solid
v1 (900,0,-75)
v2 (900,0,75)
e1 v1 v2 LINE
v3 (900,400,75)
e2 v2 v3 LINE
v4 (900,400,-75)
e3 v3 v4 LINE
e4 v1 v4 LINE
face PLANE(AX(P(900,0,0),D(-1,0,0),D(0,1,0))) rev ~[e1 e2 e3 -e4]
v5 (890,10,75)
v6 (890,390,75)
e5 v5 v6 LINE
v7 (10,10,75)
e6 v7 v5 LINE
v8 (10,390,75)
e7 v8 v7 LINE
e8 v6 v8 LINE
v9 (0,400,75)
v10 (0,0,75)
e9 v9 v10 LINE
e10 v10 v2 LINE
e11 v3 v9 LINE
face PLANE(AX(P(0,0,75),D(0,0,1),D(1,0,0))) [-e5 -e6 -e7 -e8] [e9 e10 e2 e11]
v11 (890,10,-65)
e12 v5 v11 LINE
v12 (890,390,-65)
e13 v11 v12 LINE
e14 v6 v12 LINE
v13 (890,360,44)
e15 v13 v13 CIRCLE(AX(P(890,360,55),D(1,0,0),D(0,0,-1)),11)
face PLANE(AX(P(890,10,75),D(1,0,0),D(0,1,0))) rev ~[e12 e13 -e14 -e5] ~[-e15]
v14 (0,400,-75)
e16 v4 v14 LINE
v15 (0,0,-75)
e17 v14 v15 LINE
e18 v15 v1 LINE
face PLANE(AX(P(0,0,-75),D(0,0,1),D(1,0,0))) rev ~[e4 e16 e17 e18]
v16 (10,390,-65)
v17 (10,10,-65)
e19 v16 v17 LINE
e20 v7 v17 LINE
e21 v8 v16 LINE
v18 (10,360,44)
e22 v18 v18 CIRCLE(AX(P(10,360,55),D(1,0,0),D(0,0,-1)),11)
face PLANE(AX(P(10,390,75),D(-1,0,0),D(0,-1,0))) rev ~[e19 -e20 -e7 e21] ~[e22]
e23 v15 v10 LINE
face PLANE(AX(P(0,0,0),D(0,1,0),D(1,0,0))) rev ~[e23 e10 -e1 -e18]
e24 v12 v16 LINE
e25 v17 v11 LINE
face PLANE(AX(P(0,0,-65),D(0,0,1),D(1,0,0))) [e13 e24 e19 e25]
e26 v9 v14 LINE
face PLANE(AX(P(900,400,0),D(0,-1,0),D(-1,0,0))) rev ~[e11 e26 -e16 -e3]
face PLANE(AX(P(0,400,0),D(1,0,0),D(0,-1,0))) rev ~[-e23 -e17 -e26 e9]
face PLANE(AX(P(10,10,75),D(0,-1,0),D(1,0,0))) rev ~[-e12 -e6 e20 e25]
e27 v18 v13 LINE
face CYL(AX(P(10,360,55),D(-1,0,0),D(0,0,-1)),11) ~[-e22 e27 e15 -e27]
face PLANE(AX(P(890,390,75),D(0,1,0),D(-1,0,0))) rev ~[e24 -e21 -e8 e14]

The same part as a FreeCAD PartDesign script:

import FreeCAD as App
import Part
import Sketcher

V = App.Vector
Q = App.Units.Quantity


def add_polygon(sketch, points):
    """Adds a closed chain of lines whose ends are joined by coincident constraints."""
    first, n = sketch.GeometryCount, len(points)
    for a, b in zip(points, points[1:] + points[:1]):
        sketch.addGeometry(Part.LineSegment(App.Vector(*a, 0), App.Vector(*b, 0)), False)
    for i in range(n):
        sketch.addConstraint(Sketcher.Constraint("Coincident", first + i, 2, first + (i + 1) % n, 1))

doc = App.newDocument("Part")
params = doc.addObject("Spreadsheet::Sheet", "Params")
for row, (alias, value) in enumerate([
    ("sketch1_width", "900 mm"),
    ("sketch1_height", "400 mm"),
    ("pad1_length", "150 mm"),
    ("sketch2_width", "880 mm"),
    ("sketch2_height", "380 mm"),
    ("pocket1_length", "140 mm"),
    ("sketch3_diameter", "22 mm"),
    ("pad2_length", "880 mm"),
], start=1):
    params.set(f"A{row}", alias)
    params.set(f"B{row}", "=" + value)
    params.setAlias(f"B{row}", alias)

body = doc.addObject("PartDesign::Body", "Body")

sketch1 = doc.addObject("Sketcher::SketchObject", "Sketch")
body.addObject(sketch1)
sketch1.AttachmentSupport = (doc.XY_Plane, [""])
sketch1.MapMode = "FlatFace"
add_polygon(sketch1, [(0, 400), (0, 0), (900, 0), (900, 400)])
sketch1.addConstraint([
    Sketcher.Constraint("Vertical", 0),
    Sketcher.Constraint("Horizontal", 1),
    Sketcher.Constraint("Vertical", 2),
    Sketcher.Constraint("Horizontal", 3),
    Sketcher.Constraint("Coincident", 0, 2, -1, 1),
    Sketcher.Constraint("DistanceX", 1, 1, 1, 2, Q("900 mm")),
    Sketcher.Constraint("DistanceY", 0, 2, 0, 1, Q("400 mm")),
])
sketch1.setExpression("Constraints[9]", "Params.sketch1_width")
sketch1.setExpression("Constraints[10]", "Params.sketch1_height")
pad1 = doc.addObject("PartDesign::Pad", "Pad")
body.addObject(pad1)
pad1.Profile = sketch1
pad1.setExpression("Length", "Params.pad1_length")
pad1.Midplane = True

sketch2 = doc.addObject("Sketcher::SketchObject", "Sketch001")
body.addObject(sketch2)
sketch2.AttachmentSupport = (doc.XY_Plane, [""])
sketch2.MapMode = "FlatFace"
sketch2.AttachmentOffset = App.Placement(V(0, 0, 75), App.Rotation())
add_polygon(sketch2, [(10, 390), (10, 10), (890, 10), (890, 390)])
sketch2.addConstraint([
    Sketcher.Constraint("Vertical", 0),
    Sketcher.Constraint("Horizontal", 1),
    Sketcher.Constraint("Vertical", 2),
    Sketcher.Constraint("Horizontal", 3),
    Sketcher.Constraint("DistanceX", -1, 1, 0, 2, Q("10 mm")),
    Sketcher.Constraint("DistanceY", -1, 1, 0, 2, Q("10 mm")),
    Sketcher.Constraint("DistanceX", 1, 1, 1, 2, Q("880 mm")),
    Sketcher.Constraint("DistanceY", 0, 2, 0, 1, Q("380 mm")),
])
sketch2.setExpression("Constraints[10]", "Params.sketch2_width")
sketch2.setExpression("Constraints[11]", "Params.sketch2_height")
pocket1 = doc.addObject("PartDesign::Pocket", "Pocket")
body.addObject(pocket1)
pocket1.Profile = sketch2
pocket1.setExpression("Length", "Params.pocket1_length")

sketch3 = doc.addObject("Sketcher::SketchObject", "Sketch002")
body.addObject(sketch3)
sketch3.AttachmentSupport = (doc.YZ_Plane, [""])
sketch3.MapMode = "FlatFace"
sketch3.AttachmentOffset = App.Placement(V(0, 0, 10), App.Rotation())
sketch3.addGeometry(Part.Circle(V(360, 55, 0), V(0, 0, 1), 11), False)
sketch3.addConstraint([
    Sketcher.Constraint("Diameter", 0, Q("22 mm")),
    Sketcher.Constraint("DistanceX", -1, 1, 0, 3, Q("360 mm")),
    Sketcher.Constraint("DistanceY", -1, 1, 0, 3, Q("55 mm")),
])
sketch3.setExpression("Constraints[0]", "Params.sketch3_diameter")
pad2 = doc.addObject("PartDesign::Pad", "Pad001")
body.addObject(pad2)
pad2.Profile = sketch3
pad2.setExpression("Length", "Params.pad2_length")

doc.recompute()
